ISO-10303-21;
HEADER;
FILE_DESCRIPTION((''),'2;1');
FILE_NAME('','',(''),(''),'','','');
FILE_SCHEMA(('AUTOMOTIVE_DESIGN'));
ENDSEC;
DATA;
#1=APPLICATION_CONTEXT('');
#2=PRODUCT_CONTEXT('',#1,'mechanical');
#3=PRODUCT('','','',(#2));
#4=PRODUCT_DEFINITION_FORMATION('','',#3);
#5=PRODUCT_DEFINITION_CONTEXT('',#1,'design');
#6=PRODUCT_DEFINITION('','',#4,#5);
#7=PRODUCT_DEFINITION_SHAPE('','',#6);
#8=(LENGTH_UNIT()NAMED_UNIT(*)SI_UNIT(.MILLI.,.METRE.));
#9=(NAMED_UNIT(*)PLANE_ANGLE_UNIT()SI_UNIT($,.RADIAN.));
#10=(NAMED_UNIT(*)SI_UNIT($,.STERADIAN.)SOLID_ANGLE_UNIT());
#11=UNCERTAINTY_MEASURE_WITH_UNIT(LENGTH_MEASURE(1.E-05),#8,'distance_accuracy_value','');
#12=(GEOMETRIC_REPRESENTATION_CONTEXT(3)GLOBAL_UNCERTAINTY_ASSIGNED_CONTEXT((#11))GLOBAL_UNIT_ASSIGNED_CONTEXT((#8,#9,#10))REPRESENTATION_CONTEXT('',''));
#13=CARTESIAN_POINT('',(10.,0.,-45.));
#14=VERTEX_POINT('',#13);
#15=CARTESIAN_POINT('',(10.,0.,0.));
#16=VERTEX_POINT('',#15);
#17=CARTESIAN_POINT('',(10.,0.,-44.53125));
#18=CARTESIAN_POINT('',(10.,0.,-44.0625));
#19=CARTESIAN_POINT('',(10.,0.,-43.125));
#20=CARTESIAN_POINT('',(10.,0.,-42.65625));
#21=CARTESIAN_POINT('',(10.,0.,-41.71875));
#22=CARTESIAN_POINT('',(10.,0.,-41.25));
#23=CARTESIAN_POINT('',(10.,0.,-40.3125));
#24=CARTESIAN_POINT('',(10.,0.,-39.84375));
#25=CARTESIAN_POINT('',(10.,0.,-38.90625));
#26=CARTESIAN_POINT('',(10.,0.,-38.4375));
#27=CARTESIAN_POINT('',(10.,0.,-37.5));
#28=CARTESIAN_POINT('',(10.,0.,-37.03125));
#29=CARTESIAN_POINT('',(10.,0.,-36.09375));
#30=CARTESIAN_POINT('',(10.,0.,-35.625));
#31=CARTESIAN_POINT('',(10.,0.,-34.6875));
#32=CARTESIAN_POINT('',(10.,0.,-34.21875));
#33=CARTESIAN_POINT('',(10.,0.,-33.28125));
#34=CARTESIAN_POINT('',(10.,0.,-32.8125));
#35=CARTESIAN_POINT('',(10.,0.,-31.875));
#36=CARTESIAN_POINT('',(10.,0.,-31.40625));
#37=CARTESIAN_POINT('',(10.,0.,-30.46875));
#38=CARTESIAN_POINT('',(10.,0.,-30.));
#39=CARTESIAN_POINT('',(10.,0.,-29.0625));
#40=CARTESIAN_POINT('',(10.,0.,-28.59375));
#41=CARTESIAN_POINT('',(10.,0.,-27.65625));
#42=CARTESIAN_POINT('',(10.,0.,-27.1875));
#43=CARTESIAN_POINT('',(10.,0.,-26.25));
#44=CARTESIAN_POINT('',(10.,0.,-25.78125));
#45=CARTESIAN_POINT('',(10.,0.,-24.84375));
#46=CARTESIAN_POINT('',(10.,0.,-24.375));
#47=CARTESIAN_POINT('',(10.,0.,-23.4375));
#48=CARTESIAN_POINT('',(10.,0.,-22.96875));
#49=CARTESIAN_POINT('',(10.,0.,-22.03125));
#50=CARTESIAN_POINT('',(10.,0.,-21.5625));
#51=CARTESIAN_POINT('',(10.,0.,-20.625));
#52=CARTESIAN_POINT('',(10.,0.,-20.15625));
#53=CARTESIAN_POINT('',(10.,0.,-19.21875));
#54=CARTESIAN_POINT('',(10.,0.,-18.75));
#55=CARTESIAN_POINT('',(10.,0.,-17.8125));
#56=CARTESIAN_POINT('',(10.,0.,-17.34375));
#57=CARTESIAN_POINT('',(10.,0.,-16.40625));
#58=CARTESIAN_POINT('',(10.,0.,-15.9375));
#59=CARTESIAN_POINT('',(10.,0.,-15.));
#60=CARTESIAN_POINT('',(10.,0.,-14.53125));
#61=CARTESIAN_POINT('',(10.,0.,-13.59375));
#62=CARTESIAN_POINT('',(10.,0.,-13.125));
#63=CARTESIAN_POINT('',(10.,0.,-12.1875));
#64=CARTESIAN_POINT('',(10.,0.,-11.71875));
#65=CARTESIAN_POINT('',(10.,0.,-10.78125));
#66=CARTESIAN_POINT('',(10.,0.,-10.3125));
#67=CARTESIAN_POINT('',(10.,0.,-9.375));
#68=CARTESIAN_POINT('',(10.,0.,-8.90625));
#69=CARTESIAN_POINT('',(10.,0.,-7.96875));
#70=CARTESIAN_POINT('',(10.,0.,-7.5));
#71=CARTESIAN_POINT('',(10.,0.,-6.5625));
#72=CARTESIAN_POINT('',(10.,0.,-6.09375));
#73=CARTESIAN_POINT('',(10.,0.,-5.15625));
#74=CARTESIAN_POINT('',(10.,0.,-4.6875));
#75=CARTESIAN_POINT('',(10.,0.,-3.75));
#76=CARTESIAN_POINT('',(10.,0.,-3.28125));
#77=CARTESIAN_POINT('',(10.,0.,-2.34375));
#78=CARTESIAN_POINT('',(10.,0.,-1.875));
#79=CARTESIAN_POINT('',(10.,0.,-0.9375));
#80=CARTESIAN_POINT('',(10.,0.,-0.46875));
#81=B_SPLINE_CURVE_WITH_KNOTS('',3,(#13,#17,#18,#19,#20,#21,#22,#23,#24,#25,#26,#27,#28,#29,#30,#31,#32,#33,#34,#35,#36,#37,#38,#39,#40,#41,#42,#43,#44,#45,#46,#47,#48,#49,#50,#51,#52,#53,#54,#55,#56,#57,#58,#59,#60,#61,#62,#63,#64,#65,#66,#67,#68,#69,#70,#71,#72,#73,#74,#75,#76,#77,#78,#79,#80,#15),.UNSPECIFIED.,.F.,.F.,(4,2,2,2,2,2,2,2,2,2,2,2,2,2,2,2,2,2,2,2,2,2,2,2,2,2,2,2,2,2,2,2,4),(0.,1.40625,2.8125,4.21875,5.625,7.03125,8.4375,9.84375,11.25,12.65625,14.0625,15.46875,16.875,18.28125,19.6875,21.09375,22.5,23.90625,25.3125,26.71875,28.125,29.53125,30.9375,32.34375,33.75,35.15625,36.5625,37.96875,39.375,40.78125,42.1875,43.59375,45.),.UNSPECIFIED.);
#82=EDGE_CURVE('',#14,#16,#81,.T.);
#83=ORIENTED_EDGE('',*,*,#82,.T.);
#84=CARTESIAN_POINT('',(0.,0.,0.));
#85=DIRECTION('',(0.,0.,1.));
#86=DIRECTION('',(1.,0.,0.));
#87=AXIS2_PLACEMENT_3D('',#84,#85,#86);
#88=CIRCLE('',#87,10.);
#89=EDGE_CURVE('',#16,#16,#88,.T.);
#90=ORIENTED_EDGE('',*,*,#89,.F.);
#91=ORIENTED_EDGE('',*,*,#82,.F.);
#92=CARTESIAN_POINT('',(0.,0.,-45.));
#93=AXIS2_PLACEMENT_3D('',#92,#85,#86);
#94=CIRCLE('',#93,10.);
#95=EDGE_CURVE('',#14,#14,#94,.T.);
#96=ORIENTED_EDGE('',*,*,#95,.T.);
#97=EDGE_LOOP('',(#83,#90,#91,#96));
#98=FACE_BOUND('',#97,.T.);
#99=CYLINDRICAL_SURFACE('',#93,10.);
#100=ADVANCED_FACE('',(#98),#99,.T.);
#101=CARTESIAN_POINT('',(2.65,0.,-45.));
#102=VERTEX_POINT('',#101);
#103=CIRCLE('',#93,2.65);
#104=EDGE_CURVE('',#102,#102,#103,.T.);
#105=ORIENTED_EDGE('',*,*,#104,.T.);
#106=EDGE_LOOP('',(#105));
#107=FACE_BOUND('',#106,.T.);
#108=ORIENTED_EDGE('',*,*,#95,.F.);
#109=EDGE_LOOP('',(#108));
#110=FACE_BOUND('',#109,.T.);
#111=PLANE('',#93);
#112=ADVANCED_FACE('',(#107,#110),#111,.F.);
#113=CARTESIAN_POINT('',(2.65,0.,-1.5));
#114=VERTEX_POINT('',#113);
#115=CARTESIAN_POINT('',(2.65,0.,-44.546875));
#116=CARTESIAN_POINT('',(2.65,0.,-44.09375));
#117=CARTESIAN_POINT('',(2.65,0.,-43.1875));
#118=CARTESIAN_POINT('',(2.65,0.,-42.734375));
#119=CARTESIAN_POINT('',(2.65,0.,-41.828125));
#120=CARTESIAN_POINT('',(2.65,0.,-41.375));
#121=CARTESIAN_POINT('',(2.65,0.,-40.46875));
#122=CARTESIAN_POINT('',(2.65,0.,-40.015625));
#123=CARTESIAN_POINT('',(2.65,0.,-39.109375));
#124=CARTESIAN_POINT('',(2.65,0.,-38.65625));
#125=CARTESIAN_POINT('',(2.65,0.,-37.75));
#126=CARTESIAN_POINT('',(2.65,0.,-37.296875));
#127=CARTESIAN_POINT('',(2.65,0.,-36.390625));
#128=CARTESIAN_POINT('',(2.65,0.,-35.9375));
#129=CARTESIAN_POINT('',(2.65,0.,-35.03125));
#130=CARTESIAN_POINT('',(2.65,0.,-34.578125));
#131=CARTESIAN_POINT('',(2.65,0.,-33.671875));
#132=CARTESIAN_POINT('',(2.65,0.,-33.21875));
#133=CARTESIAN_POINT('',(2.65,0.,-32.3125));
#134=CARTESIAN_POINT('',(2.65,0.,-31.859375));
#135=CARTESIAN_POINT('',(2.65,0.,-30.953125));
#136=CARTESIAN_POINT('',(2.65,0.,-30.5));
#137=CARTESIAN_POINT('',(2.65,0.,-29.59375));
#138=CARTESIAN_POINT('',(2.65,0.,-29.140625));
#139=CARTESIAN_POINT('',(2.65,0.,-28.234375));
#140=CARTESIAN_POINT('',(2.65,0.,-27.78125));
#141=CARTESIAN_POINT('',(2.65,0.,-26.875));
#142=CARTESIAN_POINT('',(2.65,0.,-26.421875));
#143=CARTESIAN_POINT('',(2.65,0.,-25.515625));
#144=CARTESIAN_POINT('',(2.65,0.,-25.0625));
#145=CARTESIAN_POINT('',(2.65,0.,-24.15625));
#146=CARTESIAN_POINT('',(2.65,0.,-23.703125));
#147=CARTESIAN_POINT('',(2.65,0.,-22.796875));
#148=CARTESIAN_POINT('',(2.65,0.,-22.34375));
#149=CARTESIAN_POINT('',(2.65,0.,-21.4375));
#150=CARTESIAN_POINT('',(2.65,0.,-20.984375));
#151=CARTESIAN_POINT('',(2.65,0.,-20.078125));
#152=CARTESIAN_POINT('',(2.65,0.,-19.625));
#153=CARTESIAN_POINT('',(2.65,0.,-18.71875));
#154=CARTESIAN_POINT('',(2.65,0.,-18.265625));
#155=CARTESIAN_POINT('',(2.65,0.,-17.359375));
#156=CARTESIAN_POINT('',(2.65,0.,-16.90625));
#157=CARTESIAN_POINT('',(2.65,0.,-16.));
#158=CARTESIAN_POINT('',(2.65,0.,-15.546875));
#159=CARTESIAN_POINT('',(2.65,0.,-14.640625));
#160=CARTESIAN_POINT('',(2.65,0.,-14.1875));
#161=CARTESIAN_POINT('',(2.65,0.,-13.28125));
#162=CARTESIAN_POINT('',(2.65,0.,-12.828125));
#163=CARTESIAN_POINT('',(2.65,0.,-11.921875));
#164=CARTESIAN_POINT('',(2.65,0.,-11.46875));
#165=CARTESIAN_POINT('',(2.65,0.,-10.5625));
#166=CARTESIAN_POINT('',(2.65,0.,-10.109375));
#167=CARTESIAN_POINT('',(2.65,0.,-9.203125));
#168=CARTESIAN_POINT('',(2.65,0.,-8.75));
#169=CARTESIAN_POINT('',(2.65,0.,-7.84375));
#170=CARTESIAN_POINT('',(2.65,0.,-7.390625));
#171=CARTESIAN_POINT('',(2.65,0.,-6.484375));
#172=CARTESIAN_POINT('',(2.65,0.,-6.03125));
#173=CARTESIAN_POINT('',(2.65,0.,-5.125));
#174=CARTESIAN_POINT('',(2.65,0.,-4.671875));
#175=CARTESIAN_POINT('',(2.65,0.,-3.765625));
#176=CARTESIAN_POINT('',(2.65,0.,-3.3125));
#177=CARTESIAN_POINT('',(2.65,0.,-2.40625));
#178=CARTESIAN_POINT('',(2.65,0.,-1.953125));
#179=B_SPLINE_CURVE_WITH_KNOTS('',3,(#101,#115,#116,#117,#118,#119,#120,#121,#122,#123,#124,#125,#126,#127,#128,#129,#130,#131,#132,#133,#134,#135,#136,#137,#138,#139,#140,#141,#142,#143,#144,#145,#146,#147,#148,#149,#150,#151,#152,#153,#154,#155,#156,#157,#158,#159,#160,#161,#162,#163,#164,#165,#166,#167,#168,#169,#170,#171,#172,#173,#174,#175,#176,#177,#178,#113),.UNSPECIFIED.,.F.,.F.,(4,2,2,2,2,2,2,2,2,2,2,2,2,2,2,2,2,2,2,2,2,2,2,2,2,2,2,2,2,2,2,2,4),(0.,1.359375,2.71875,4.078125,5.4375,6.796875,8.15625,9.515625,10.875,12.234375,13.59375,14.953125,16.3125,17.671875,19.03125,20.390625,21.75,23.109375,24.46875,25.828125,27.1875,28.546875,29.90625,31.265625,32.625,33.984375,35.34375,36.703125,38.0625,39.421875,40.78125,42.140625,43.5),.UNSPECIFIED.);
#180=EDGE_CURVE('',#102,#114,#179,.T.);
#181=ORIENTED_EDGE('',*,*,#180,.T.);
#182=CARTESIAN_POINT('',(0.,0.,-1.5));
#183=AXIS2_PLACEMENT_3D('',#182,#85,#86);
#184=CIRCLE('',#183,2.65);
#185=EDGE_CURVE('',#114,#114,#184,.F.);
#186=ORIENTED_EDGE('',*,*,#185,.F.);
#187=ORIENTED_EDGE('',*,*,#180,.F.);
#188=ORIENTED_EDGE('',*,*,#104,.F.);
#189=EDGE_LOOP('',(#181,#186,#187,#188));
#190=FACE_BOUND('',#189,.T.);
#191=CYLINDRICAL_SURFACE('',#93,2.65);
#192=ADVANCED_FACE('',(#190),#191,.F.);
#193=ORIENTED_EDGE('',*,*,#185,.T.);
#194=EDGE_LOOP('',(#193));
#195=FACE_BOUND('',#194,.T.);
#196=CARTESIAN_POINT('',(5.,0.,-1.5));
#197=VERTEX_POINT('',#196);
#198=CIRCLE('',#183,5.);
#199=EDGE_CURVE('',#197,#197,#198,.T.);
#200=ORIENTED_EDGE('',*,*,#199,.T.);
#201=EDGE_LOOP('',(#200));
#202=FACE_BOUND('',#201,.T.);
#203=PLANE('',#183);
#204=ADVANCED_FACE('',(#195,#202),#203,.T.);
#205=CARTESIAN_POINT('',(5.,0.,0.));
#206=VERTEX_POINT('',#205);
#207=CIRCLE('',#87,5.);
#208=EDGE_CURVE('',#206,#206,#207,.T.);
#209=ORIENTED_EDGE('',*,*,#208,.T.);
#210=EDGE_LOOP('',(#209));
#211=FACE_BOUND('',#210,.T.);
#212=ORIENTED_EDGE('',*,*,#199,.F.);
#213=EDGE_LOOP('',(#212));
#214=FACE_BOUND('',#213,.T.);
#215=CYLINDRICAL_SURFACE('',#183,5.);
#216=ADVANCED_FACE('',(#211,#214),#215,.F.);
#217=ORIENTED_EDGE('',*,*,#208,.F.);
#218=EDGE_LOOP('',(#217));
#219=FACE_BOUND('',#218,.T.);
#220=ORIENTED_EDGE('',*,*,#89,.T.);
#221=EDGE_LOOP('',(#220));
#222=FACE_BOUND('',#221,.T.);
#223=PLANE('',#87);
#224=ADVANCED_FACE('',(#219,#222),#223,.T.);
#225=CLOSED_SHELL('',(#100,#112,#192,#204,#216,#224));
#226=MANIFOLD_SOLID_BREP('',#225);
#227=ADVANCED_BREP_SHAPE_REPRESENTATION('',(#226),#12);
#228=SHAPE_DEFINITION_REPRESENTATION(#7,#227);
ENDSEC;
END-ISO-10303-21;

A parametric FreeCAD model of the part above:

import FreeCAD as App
import Part
import Sketcher

doc = App.newDocument("Part")
body = doc.addObject("PartDesign::Body", "Body")

# Sketch on XY plane
sketch1 = doc.addObject("Sketcher::SketchObject", "Sketch")
body.addObject(sketch1)
sketch1.AttachmentSupport = (doc.XY_Plane, [""])
sketch1.MapMode = "FlatFace"
sketch1.addGeometry(Part.Circle(App.Vector(0, 0, 0), App.Vector(0, 0, 1), 10), False)
sketch1.addConstraint(Sketcher.Constraint("Coincident", 0, 3, -1, 1))
sketch1.addConstraint(Sketcher.Constraint("Diameter", 0, 20.0))
pad1 = doc.addObject("PartDesign::Pad", "Pad")
body.addObject(pad1)
pad1.Profile = sketch1
pad1.Length = 45
pad1.Reversed = True

# Sketch on XY plane
sketch2 = doc.addObject("Sketcher::SketchObject", "Sketch001")
body.addObject(sketch2)
sketch2.AttachmentSupport = (doc.XY_Plane, [""])
sketch2.MapMode = "FlatFace"
sketch2.addGeometry(Part.Circle(App.Vector(0, 0, 0), App.Vector(0, 0, 1), 2.6), False)
sketch2.addConstraint(Sketcher.Constraint("Coincident", 0, 3, -1, 1))
sketch2.addConstraint(Sketcher.Constraint("Diameter", 0, 5.3))
pocket1 = doc.addObject("PartDesign::Pocket", "Pocket")
body.addObject(pocket1)
pocket1.Profile = sketch2
pocket1.Type = "ThroughAll"

# Sketch on XY plane
sketch3 = doc.addObject("Sketcher::SketchObject", "Sketch002")
body.addObject(sketch3)
sketch3.AttachmentSupport = (doc.XY_Plane, [""])
sketch3.MapMode = "FlatFace"
sketch3.addGeometry(Part.Circle(App.Vector(0, 0, 0), App.Vector(0, 0, 1), 5), False)
sketch3.addConstraint(Sketcher.Constraint("Coincident", 0, 3, -1, 1))
sketch3.addConstraint(Sketcher.Constraint("Diameter", 0, 10.0))
pocket2 = doc.addObject("PartDesign::Pocket", "Pocket001")
body.addObject(pocket2)
pocket2.Profile = sketch3
pocket2.Length = 1.5

doc.recompute()
